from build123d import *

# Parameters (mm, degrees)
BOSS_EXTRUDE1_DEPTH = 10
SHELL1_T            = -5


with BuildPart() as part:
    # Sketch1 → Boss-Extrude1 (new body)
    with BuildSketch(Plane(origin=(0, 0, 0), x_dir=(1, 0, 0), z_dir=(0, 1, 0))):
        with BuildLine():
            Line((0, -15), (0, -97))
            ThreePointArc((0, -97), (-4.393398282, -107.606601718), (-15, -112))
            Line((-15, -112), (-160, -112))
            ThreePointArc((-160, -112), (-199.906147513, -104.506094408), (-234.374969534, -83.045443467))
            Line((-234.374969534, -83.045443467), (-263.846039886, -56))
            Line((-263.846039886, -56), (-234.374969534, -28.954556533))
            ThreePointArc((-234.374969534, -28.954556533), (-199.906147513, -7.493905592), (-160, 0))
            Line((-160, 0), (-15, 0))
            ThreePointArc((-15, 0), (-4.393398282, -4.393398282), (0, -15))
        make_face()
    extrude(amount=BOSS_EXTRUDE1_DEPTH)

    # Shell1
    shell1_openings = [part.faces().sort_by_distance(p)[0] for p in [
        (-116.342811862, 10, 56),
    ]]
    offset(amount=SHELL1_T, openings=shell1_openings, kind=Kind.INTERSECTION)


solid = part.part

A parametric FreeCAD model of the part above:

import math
import FreeCAD as App
import Part
import Sketcher
from FreeCAD import Vector
Q = App.Units.Quantity


def faces_at(feature, points):
    """Names of the faces that lie closest to the given points."""
    faces = feature.Shape.Faces
    near = lambda p: min(range(len(faces)), key=lambda i: faces[i].distToShape(Part.Vertex(*p))[0])
    return sorted({f"Face{near(p) + 1}" for p in points})

doc = App.newDocument("Part")
body = doc.addObject("PartDesign::Body", "Body")

# Sketch on XZ plane
sketch1 = body.newObject("Sketcher::SketchObject", "Sketch")
sketch1.AttachmentSupport = (doc.getObject("XZ_Plane"), [""])
sketch1.MapMode = "FlatFace"
sketch1.addGeometry([
    Part.LineSegment(Vector(0, 97, 0), Vector(0, 15, 0)),  # 0
    Part.ArcOfCircle(Part.Circle(Vector(-15, 15, 0), Vector(0, 0, 1), 15), math.radians(-90), math.radians(0)),  # 1
    Part.LineSegment(Vector(-15, 0, 0), Vector(-160, 0, 0)),  # 2
    Part.ArcOfCircle(Part.Circle(Vector(-160, 110, 0), Vector(0, 0, 1), 110), math.radians(-133), math.radians(-90)),  # 3
    Part.LineSegment(Vector(-234, 29, 0), Vector(-264, 56, 0)),  # 4
    Part.LineSegment(Vector(-264, 56, 0), Vector(-234, 83, 0)),  # 5
    Part.ArcOfCircle(Part.Circle(Vector(-160, 2, 0), Vector(0, 0, 1), 110), math.radians(90), math.radians(133)),  # 6
    Part.LineSegment(Vector(-160, 112, 0), Vector(-15, 112, 0)),  # 7
    Part.ArcOfCircle(Part.Circle(Vector(-15, 97, 0), Vector(0, 0, 1), 15), math.radians(0), math.radians(90)),  # 8
], False)
sketch1.addConstraint([
    Sketcher.Constraint("Tangent", 0, 2, 1, 2),
    Sketcher.Constraint("Tangent", 1, 1, 2, 1),
    Sketcher.Constraint("Tangent", 2, 2, 3, 2),
    Sketcher.Constraint("Tangent", 3, 1, 4, 1),
    Sketcher.Constraint("Coincident", 4, 2, 5, 1),
    Sketcher.Constraint("Tangent", 5, 2, 6, 2),
    Sketcher.Constraint("Tangent", 6, 1, 7, 1),
    Sketcher.Constraint("Tangent", 7, 2, 8, 2),
    Sketcher.Constraint("Tangent", 8, 1, 0, 1),
    Sketcher.Constraint("Vertical", 0),
    Sketcher.Constraint("Horizontal", 2),
    Sketcher.Constraint("Horizontal", 7),
    Sketcher.Constraint("Equal", 3, 6),
    Sketcher.Constraint("Equal", 1, 8),
    Sketcher.Constraint("PointOnObject", 0, 2, -2),
    Sketcher.Constraint("PointOnObject", 1, 1, -1),
    Sketcher.Constraint("Vertical", 3, 3, 6, 3),
    Sketcher.Constraint("Vertical", 3, 1, 5, 2),
    Sketcher.Constraint("Radius", 1, Q("15 mm")),
    Sketcher.Constraint("Radius", 3, Q("110 mm")),
    Sketcher.Constraint("DistanceX", 2, 2, 2, 1, Q("145 mm")),
    Sketcher.Constraint("DistanceY", 0, 2, 0, 1, Q("82 mm")),
    Sketcher.Constraint("Distance", 4, Q("40 mm")),
])
pad1 = body.newObject("PartDesign::Pad", "Pad")
pad1.Profile = sketch1
pad1.Length = 10
pad1.Reversed = True
doc.recompute()

thickness = body.newObject("PartDesign::Thickness", "Thickness")
thickness.Base = (pad1, faces_at(pad1, [(-131.923, 10, 56)]))
thickness.Value = 5
thickness.Reversed = True
thickness.Join = "Intersection"

doc.recompute()
